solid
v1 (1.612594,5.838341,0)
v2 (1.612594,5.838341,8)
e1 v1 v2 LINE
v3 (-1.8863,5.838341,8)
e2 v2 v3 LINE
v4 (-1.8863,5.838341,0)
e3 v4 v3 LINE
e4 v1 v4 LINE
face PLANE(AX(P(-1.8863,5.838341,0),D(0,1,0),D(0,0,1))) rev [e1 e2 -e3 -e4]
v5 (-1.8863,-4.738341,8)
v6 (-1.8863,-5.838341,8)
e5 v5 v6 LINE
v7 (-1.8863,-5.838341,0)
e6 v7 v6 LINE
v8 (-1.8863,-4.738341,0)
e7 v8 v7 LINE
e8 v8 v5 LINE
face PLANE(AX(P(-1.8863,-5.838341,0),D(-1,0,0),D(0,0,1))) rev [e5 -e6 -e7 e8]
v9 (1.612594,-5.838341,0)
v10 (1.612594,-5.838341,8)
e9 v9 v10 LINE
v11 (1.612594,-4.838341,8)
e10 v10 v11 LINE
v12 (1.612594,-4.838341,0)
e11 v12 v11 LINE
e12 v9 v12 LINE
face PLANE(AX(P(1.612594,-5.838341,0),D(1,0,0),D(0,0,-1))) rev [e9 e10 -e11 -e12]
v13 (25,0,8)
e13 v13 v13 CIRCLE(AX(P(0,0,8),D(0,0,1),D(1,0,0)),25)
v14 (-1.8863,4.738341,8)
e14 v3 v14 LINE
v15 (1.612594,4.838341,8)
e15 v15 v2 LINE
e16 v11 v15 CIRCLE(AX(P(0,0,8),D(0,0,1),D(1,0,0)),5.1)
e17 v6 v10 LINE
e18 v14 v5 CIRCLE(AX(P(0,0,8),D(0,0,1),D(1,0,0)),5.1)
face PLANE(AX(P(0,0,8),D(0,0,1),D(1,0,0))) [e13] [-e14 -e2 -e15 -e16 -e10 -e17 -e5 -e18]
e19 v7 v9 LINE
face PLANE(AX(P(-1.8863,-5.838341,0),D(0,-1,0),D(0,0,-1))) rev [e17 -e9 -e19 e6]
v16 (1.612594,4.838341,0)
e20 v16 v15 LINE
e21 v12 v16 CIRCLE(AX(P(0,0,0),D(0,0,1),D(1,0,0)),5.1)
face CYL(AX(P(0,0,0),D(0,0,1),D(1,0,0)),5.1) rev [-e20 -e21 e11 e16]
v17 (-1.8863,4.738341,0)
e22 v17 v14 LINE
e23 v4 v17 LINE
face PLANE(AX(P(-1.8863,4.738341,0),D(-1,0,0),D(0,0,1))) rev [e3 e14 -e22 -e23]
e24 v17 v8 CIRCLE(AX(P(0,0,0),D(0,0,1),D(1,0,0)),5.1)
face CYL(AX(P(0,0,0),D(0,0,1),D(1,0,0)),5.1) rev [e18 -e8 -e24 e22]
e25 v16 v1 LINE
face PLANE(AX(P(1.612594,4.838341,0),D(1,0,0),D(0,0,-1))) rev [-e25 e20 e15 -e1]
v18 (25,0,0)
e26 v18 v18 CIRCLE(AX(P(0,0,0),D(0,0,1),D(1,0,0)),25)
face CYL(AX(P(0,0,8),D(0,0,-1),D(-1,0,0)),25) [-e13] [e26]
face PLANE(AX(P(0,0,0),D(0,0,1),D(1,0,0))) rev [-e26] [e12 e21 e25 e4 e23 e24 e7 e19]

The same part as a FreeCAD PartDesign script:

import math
import FreeCAD as App
import Part
import Sketcher
Q = App.Units.Quantity

doc = App.newDocument("Part")
body = doc.addObject("PartDesign::Body", "Body")

# Sketch on XY plane
sketch1 = body.newObject("Sketcher::SketchObject", "Sketch")
sketch1.AttachmentSupport = (doc.getObject("XY_Plane"), [""])
sketch1.MapMode = "FlatFace"
sketch1.addGeometry(Part.Circle(App.Vector(0, 0, 0), App.Vector(0, 0, 1), 25), False)
sketch1.addConstraint(Sketcher.Constraint("Coincident", 0, 3, -1, 1))
sketch1.addConstraint(Sketcher.Constraint("Diameter", 0, Q("50 mm")))
pad1 = body.newObject("PartDesign::Pad", "Pad")
pad1.Profile = sketch1
pad1.Length = 8

# Sketch on XY plane
sketch2 = body.newObject("Sketcher::SketchObject", "Sketch001")
sketch2.AttachmentSupport = (doc.getObject("XY_Plane"), [""])
sketch2.MapMode = "FlatFace"
sketch2.AttachmentOffset = App.Placement(App.Vector(0, 0, 8), App.Rotation())
sketch2.addGeometry(Part.LineSegment(App.Vector(-1.9, 5.8, 0), App.Vector(-1.9, 4.7, 0)), False)
sketch2.addGeometry(Part.ArcOfCircle(Part.Circle(App.Vector(0, 0, 0), App.Vector(0, 0, 1), 5.1), math.radians(112), math.radians(248)), False)
sketch2.addGeometry(Part.LineSegment(App.Vector(-1.9, -4.7, 0), App.Vector(-1.9, -5.8, 0)), False)
sketch2.addGeometry(Part.LineSegment(App.Vector(-1.9, -5.8, 0), App.Vector(1.6, -5.8, 0)), False)
sketch2.addGeometry(Part.LineSegment(App.Vector(1.6, -5.8, 0), App.Vector(1.6, -4.8, 0)), False)
sketch2.addGeometry(Part.ArcOfCircle(Part.Circle(App.Vector(0, 0, 0), App.Vector(0, 0, 1), 5.1), math.radians(-72), math.radians(72)), False)
sketch2.addGeometry(Part.LineSegment(App.Vector(1.6, 4.8, 0), App.Vector(1.6, 5.8, 0)), False)
sketch2.addGeometry(Part.LineSegment(App.Vector(1.6, 5.8, 0), App.Vector(-1.9, 5.8, 0)), False)
sketch2.addConstraint(Sketcher.Constraint("Coincident", 0, 2, 1, 1))
sketch2.addConstraint(Sketcher.Constraint("Coincident", 1, 2, 2, 1))
sketch2.addConstraint(Sketcher.Constraint("Coincident", 2, 2, 3, 1))
sketch2.addConstraint(Sketcher.Constraint("Coincident", 3, 2, 4, 1))
sketch2.addConstraint(Sketcher.Constraint("Coincident", 4, 2, 5, 1))
sketch2.addConstraint(Sketcher.Constraint("Coincident", 5, 2, 6, 1))
sketch2.addConstraint(Sketcher.Constraint("Coincident", 6, 2, 7, 1))
sketch2.addConstraint(Sketcher.Constraint("Coincident", 7, 2, 0, 1))
sketch2.addConstraint(Sketcher.Constraint("Vertical", 0))
sketch2.addConstraint(Sketcher.Constraint("Vertical", 2))
sketch2.addConstraint(Sketcher.Constraint("Horizontal", 3))
sketch2.addConstraint(Sketcher.Constraint("Vertical", 4))
sketch2.addConstraint(Sketcher.Constraint("Vertical", 6))
sketch2.addConstraint(Sketcher.Constraint("Horizontal", 7))
sketch2.addConstraint(Sketcher.Constraint("Coincident", 1, 3, -1, 1))
sketch2.addConstraint(Sketcher.Constraint("Coincident", 5, 3, -1, 1))
sketch2.addConstraint(Sketcher.Constraint("Equal", 1, 5))
sketch2.addConstraint(Sketcher.Constraint("Symmetric", 3, 2, 6, 2, -1))
sketch2.addConstraint(Sketcher.Constraint("Vertical", 0, 2, 1, 2))
sketch2.addConstraint(Sketcher.Constraint("Radius", 1, Q("5.1 mm")))
sketch2.addConstraint(Sketcher.Constraint("DistanceY", 4, 1, 4, 2, Q("1 mm")))
sketch2.addConstraint(Sketcher.Constraint("DistanceY", 0, 2, 0, 1, Q("1.1 mm")))
sketch2.addConstraint(Sketcher.Constraint("DistanceX", 0, 2, -1, 1, Q("1.8863 mm")))
pocket1 = body.newObject("PartDesign::Pocket", "Pocket")
pocket1.Profile = sketch2
pocket1.Type = "ThroughAll"

doc.recompute()
